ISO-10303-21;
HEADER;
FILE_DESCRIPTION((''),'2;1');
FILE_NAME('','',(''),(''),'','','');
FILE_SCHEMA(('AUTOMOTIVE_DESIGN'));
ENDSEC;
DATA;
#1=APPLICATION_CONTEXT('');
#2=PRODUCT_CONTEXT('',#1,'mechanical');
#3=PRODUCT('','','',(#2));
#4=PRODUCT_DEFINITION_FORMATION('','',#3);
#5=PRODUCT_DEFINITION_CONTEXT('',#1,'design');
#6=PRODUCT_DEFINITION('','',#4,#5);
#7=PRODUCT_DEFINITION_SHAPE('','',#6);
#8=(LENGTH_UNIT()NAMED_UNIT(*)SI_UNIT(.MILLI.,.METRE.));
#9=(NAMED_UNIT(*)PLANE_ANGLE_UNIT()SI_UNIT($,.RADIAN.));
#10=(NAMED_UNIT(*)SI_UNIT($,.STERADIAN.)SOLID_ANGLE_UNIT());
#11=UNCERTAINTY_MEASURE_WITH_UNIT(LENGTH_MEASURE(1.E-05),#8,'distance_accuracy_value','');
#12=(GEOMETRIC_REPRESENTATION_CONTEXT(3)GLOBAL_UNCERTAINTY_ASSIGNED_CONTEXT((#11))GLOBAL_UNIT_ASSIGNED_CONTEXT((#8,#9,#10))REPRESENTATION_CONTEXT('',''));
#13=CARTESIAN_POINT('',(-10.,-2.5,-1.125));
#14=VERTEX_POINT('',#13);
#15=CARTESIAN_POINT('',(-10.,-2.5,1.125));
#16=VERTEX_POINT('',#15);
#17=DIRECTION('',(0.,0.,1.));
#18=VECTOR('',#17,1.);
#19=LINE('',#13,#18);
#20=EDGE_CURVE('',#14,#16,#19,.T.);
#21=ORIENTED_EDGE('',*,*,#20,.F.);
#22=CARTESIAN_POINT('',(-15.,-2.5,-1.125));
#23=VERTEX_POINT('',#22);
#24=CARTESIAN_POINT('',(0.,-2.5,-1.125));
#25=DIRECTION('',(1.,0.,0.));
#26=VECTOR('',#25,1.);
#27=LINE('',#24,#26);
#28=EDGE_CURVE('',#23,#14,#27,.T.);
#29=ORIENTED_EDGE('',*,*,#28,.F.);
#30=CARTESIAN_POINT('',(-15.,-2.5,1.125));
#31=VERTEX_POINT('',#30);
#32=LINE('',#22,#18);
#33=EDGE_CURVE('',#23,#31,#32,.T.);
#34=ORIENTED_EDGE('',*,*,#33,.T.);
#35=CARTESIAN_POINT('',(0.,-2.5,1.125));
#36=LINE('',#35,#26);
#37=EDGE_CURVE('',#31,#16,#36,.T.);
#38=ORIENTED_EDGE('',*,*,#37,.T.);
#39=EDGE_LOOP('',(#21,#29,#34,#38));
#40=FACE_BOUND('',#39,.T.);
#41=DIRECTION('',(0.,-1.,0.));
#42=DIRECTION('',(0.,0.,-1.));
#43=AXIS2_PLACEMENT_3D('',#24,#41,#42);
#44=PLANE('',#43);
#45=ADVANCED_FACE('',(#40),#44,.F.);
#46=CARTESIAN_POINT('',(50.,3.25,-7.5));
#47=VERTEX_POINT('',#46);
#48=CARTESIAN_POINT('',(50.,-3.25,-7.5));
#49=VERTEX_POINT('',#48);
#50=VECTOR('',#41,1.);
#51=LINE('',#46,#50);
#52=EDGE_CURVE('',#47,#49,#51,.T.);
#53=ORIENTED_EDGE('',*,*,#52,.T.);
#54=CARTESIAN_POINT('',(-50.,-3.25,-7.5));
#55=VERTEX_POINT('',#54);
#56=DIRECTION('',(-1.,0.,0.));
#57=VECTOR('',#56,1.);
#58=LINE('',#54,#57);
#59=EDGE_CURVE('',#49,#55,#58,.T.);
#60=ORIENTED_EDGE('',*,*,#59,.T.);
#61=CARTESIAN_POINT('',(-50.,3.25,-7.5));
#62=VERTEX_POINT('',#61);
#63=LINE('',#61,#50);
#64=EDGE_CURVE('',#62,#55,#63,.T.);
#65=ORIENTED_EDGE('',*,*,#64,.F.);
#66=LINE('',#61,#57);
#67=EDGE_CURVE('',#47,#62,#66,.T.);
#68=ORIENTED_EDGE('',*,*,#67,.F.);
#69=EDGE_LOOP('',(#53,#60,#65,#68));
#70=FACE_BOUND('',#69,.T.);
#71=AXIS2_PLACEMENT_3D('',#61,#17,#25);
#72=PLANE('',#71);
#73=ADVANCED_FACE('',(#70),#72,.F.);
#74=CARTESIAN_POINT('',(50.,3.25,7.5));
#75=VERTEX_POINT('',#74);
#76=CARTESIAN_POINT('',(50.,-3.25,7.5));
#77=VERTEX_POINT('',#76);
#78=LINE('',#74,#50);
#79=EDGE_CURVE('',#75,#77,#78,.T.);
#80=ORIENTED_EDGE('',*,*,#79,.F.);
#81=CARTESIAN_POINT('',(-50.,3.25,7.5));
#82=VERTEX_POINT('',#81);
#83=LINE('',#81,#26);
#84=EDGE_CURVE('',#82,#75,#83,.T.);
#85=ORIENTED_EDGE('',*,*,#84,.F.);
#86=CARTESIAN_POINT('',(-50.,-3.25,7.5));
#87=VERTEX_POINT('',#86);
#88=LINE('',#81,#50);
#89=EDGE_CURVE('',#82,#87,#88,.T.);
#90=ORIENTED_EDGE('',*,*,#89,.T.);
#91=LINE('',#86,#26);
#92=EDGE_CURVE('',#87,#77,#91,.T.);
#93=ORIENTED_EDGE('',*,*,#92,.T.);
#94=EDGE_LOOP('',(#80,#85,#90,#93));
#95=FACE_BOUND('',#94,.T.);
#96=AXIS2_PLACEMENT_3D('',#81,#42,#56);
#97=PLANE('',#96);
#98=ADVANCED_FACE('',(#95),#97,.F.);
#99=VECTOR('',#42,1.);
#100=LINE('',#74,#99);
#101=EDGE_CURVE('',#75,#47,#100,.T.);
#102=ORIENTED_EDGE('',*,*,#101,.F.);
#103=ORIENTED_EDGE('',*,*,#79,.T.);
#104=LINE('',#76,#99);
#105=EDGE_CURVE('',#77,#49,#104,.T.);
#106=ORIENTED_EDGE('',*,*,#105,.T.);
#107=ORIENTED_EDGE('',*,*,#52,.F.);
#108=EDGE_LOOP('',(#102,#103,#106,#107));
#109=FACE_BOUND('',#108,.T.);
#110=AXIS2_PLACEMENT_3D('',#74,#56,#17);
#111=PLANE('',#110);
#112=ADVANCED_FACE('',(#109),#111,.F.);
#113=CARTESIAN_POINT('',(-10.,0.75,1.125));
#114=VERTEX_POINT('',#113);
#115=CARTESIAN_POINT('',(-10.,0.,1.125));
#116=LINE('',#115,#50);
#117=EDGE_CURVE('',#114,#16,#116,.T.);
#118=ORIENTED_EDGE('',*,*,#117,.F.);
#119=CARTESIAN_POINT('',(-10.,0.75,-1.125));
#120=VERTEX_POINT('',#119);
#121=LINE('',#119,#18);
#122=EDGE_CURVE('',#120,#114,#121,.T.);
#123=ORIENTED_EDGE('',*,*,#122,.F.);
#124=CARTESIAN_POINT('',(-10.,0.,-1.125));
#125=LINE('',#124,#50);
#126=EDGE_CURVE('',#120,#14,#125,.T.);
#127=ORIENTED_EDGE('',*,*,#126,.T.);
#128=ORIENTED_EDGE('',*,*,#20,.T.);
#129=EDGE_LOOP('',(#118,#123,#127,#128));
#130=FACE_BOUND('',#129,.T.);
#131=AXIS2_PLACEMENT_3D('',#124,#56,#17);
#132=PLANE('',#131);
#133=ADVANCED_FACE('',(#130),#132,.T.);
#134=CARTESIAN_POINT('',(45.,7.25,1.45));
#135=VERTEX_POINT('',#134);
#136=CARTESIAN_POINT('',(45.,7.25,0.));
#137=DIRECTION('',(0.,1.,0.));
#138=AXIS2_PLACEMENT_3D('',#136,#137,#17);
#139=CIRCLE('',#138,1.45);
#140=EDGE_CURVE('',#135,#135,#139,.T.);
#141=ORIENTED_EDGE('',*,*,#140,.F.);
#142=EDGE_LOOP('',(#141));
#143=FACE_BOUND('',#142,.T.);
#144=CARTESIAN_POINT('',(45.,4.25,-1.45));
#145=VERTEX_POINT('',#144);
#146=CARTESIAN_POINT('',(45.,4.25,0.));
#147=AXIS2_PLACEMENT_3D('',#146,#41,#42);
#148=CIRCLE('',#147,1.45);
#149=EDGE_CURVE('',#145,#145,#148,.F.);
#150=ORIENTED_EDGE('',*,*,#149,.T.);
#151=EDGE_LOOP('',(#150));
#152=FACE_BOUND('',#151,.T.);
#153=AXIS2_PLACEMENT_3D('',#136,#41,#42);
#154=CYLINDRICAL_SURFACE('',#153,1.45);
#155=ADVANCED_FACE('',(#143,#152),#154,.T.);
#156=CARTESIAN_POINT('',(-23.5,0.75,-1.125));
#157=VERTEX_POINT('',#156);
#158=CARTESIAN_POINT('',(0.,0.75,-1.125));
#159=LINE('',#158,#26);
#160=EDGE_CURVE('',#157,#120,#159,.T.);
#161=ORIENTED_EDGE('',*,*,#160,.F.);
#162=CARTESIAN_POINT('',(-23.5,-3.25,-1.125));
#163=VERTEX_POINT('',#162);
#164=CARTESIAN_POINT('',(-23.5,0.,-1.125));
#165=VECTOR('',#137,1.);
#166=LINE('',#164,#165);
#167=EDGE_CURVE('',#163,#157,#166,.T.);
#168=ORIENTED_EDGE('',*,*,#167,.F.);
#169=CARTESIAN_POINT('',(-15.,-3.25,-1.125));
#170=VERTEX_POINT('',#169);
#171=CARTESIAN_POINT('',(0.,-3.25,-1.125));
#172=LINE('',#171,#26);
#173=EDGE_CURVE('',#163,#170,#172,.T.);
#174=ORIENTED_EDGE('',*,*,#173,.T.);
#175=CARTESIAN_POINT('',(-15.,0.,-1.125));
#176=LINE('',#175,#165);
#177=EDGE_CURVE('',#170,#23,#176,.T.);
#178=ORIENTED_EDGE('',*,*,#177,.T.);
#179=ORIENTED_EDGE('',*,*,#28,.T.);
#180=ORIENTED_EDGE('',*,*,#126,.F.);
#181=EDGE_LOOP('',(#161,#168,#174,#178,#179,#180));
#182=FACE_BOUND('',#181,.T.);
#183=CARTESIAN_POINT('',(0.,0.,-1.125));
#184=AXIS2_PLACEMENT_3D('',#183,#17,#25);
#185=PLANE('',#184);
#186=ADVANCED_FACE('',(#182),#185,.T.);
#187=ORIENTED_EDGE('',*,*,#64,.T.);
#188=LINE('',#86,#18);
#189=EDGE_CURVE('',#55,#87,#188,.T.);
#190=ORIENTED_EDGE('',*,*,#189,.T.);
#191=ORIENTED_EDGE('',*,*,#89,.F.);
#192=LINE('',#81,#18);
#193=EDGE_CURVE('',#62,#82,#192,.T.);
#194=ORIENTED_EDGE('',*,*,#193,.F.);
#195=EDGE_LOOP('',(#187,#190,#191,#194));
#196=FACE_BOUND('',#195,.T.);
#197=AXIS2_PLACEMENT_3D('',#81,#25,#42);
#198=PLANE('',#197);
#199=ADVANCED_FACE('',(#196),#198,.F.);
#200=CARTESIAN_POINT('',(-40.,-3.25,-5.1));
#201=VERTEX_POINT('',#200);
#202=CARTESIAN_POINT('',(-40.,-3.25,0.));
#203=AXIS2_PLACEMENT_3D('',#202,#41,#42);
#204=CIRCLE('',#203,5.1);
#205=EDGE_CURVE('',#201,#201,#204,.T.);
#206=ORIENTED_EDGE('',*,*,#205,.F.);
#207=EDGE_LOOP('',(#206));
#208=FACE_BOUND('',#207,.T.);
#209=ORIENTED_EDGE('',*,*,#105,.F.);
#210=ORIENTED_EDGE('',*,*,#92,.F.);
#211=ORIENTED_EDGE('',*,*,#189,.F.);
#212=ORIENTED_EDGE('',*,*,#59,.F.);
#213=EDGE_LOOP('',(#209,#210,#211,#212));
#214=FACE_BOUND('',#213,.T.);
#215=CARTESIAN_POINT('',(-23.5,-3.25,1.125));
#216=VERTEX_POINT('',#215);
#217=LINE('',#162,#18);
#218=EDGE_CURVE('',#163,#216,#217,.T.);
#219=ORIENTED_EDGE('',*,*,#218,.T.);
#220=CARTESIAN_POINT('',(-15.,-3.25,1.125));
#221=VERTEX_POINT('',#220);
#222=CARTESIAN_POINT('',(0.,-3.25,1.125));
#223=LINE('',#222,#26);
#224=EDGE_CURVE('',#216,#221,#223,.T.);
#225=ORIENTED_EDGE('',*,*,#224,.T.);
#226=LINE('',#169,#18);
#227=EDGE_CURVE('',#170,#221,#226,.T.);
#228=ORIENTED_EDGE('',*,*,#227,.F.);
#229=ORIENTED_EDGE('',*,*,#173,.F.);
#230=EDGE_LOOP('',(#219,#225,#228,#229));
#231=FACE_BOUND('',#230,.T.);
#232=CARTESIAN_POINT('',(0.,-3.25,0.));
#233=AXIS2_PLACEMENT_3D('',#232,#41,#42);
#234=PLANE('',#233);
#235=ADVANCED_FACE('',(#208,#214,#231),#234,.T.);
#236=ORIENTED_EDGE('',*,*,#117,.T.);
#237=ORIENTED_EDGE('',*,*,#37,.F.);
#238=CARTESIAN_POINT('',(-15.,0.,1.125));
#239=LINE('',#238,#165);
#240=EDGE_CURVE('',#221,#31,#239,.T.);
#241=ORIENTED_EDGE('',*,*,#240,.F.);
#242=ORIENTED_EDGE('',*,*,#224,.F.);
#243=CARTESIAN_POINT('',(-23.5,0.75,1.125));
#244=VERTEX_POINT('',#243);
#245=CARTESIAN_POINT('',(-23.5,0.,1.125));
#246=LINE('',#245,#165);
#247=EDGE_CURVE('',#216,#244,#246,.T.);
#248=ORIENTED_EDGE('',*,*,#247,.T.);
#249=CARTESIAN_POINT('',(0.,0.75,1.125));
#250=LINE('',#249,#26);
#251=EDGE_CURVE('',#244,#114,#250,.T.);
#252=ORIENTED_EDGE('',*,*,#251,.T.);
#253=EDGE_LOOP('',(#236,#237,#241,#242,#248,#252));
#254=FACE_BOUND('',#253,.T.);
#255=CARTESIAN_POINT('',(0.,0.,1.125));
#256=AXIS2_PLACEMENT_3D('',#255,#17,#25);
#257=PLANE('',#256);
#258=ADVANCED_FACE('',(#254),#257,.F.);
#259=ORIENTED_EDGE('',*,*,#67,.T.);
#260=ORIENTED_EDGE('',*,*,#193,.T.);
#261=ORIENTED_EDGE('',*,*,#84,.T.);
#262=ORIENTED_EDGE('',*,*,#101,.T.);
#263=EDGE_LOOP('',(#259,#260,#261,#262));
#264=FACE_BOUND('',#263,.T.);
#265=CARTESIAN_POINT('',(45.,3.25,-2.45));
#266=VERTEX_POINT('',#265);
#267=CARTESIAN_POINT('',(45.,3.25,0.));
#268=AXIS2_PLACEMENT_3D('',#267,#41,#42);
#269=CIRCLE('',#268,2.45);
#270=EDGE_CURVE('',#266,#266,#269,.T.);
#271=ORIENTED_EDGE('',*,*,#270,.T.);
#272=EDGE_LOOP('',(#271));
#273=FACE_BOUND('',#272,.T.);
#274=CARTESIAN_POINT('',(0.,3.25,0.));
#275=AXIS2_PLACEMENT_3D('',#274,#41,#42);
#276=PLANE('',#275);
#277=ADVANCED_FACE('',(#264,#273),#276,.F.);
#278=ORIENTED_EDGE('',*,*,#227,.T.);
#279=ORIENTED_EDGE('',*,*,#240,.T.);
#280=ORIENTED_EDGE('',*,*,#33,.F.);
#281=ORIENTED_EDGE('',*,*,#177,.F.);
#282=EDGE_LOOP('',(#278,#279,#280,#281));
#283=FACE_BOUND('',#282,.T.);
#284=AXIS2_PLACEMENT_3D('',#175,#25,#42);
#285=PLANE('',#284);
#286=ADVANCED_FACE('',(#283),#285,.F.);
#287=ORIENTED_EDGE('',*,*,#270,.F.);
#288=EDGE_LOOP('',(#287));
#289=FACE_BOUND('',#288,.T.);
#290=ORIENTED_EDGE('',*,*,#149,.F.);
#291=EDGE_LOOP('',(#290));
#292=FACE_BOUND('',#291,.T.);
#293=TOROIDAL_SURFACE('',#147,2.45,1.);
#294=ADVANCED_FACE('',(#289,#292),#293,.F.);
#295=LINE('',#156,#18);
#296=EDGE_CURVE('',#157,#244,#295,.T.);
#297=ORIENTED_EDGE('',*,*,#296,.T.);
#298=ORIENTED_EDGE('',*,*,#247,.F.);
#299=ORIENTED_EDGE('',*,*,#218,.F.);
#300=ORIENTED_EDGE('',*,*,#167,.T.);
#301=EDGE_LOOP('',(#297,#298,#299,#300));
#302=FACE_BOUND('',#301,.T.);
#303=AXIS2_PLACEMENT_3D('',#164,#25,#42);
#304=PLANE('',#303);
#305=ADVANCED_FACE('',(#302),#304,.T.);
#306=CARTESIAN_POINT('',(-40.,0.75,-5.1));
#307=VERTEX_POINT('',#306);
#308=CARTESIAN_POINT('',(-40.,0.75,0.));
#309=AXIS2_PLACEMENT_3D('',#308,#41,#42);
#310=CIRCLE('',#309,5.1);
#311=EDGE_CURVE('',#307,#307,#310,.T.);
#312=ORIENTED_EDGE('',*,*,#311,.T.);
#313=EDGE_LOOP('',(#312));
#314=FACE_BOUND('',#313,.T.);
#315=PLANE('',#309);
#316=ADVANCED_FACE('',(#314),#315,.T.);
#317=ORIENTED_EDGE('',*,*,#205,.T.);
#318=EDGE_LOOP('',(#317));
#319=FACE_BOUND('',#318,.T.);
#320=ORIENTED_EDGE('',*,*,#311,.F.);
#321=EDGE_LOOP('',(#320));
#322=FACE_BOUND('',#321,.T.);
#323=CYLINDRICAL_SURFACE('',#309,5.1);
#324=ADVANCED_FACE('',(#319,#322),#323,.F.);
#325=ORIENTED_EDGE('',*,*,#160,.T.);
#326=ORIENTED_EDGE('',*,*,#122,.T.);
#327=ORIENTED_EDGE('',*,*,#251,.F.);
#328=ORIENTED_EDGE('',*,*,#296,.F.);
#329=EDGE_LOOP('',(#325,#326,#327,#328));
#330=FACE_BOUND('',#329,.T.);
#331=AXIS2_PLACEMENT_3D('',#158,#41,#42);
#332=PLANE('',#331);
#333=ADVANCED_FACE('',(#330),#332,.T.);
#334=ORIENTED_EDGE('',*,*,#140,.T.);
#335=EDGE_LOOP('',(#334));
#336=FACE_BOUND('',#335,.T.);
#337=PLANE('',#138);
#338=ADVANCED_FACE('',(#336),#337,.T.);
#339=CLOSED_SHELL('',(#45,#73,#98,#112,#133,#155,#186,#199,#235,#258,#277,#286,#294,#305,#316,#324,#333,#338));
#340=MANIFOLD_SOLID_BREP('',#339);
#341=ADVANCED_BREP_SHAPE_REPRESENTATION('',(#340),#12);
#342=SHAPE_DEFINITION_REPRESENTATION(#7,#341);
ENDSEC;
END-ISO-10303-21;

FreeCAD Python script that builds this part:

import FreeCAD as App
import Part
import Sketcher
from FreeCAD import Vector


def edges_at(feature, points):
    """Names of the edges that pass closest to the given points."""
    edges = feature.Shape.Edges
    near = lambda p: min(range(len(edges)), key=lambda i: edges[i].distToShape(Part.Vertex(*p))[0])
    return sorted({f"Edge{near(p) + 1}" for p in points})

doc = App.newDocument("Part")
body = doc.addObject("PartDesign::Body", "Body")

sketch1 = body.newObject("Sketcher::SketchObject", "Sketch")
sketch1.AttachmentSupport = (doc.getObject("XZ_Plane"), [""])
sketch1.MapMode = "FlatFace"
sketch1.addGeometry([
    Part.LineSegment(Vector(-50, -7.5, 0), Vector(-50, 7.5, 0)),
    Part.LineSegment(Vector(-50, 7.5, 0), Vector(50, 7.5, 0)),
    Part.LineSegment(Vector(50, 7.5, 0), Vector(50, -7.5, 0)),
    Part.LineSegment(Vector(50, -7.5, 0), Vector(-50, -7.5, 0)),
], False)
sketch1.addConstraint([
    Sketcher.Constraint("Coincident", 0, 2, 1, 1),
    Sketcher.Constraint("Coincident", 1, 2, 2, 1),
    Sketcher.Constraint("Coincident", 2, 2, 3, 1),
    Sketcher.Constraint("Coincident", 3, 2, 0, 1),
    Sketcher.Constraint("Vertical", 0),
    Sketcher.Constraint("Horizontal", 1),
    Sketcher.Constraint("Vertical", 2),
    Sketcher.Constraint("Horizontal", 3),
    Sketcher.Constraint("Symmetric", 0, 2, 2, 2, -1, 1),
    Sketcher.Constraint("DistanceX", 1, 1, 1, 2, 100.0),
    Sketcher.Constraint("DistanceY", 0, 1, 0, 2, 15.0),
])
pad1 = body.newObject("PartDesign::Pad", "Pad")
pad1.Profile = sketch1
pad1.Length = 6.5
pad1.Midplane = True

sketch2 = body.newObject("Sketcher::SketchObject", "Sketch001")
sketch2.AttachmentSupport = (doc.getObject("XZ_Plane"), [""])
sketch2.MapMode = "FlatFace"
sketch2.AttachmentOffset = App.Placement(Vector(0, 0, -3.25), App.Rotation())
sketch2.addGeometry(Part.Circle(Vector(45, 0, 0), Vector(0, 0, 1), 1.45), False)
sketch2.addConstraint([
    Sketcher.Constraint("PointOnObject", 0, 3, -1),
    Sketcher.Constraint("Diameter", 0, 2.9),
    Sketcher.Constraint("DistanceX", -1, 1, 0, 3, 45.0),
])
pad2 = body.newObject("PartDesign::Pad", "Pad001")
pad2.Profile = sketch2
pad2.Length = 4
pad2.Reversed = True

sketch3 = body.newObject("Sketcher::SketchObject", "Sketch002")
sketch3.AttachmentSupport = (doc.getObject("XZ_Plane"), [""])
sketch3.MapMode = "FlatFace"
sketch3.AttachmentOffset = App.Placement(Vector(0, 0, 3.25), App.Rotation())
sketch3.addGeometry(Part.Circle(Vector(-40, 0, 0), Vector(0, 0, 1), 5.1), False)
sketch3.addConstraint([
    Sketcher.Constraint("PointOnObject", 0, 3, -1),
    Sketcher.Constraint("Diameter", 0, 10.2),
    Sketcher.Constraint("DistanceX", 0, 3, -1, 1, 40.0),
])
pocket1 = body.newObject("PartDesign::Pocket", "Pocket")
pocket1.Profile = sketch3
pocket1.Length = 4
doc.recompute()

fillet = body.newObject("PartDesign::Fillet", "Fillet")
fillet.Base = (pocket1, edges_at(pocket1, [(45, 3.25, 1.45)]))
fillet.Radius = 1

sketch4 = body.newObject("Sketcher::SketchObject", "Sketch003")
sketch4.AttachmentSupport = (doc.getObject("XY_Plane"), [""])
sketch4.MapMode = "FlatFace"
sketch4.addGeometry([
    Part.LineSegment(Vector(-23.5, 0.75, 0), Vector(-23.5, -3.25, 0)),
    Part.LineSegment(Vector(-23.5, -3.25, 0), Vector(-15, -3.25, 0)),
    Part.LineSegment(Vector(-15, -3.25, 0), Vector(-15, -2.5, 0)),
    Part.LineSegment(Vector(-15, -2.5, 0), Vector(-10, -2.5, 0)),
    Part.LineSegment(Vector(-10, -2.5, 0), Vector(-10, 0.75, 0)),
    Part.LineSegment(Vector(-10, 0.75, 0), Vector(-23.5, 0.75, 0)),
], False)
sketch4.addConstraint([
    Sketcher.Constraint("Coincident", 0, 2, 1, 1),
    Sketcher.Constraint("Coincident", 1, 2, 2, 1),
    Sketcher.Constraint("Coincident", 2, 2, 3, 1),
    Sketcher.Constraint("Coincident", 3, 2, 4, 1),
    Sketcher.Constraint("Coincident", 4, 2, 5, 1),
    Sketcher.Constraint("Coincident", 5, 2, 0, 1),
    Sketcher.Constraint("Vertical", 0),
    Sketcher.Constraint("Horizontal", 1),
    Sketcher.Constraint("Vertical", 2),
    Sketcher.Constraint("Horizontal", 3),
    Sketcher.Constraint("Vertical", 4),
    Sketcher.Constraint("Horizontal", 5),
    Sketcher.Constraint("DistanceX", 3, 1, 3, 2, 5.0),
    Sketcher.Constraint("DistanceY", 0, 2, 0, 1, 4.0),
    Sketcher.Constraint("DistanceX", 1, 1, 1, 2, 8.5),
    Sketcher.Constraint("DistanceX", 1, 2, -1, 1, 15.0),
    Sketcher.Constraint("DistanceY", 2, 1, 2, 2, 0.75),
    Sketcher.Constraint("DistanceY", 2, 2, -1, 1, 2.5),
])
pocket2 = body.newObject("PartDesign::Pocket", "Pocket001")
pocket2.Profile = sketch4
pocket2.Length = 2.25
pocket2.Midplane = True

doc.recompute()
